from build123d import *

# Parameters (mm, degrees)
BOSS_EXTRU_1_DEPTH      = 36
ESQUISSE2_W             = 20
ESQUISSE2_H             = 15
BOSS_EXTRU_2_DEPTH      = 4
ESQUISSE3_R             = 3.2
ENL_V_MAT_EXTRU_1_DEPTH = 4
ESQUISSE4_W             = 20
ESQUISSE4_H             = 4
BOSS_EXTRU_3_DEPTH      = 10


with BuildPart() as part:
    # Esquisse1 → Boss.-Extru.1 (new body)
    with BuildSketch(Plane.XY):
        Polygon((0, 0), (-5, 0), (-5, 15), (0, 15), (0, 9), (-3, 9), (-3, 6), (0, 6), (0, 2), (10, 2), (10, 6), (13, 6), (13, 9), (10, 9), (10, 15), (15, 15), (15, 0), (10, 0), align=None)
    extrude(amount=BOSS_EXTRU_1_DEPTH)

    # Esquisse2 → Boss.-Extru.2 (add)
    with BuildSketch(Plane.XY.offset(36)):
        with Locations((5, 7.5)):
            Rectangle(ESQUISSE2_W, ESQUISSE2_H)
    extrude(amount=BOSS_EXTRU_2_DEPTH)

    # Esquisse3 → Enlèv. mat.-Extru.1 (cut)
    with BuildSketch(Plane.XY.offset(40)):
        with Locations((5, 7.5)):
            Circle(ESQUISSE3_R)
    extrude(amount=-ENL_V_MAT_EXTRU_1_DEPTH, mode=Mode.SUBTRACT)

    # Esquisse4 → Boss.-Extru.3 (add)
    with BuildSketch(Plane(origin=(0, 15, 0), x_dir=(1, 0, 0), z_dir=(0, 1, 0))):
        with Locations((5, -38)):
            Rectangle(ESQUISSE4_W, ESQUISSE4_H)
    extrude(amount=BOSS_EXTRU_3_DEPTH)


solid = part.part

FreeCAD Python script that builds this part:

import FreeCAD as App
import Part
import Sketcher

V = App.Vector


def add_polygon(sketch, points):
    """Adds a closed chain of lines whose ends are joined by coincident constraints."""
    first, n = sketch.GeometryCount, len(points)
    for a, b in zip(points, points[1:] + points[:1]):
        sketch.addGeometry(Part.LineSegment(App.Vector(*a, 0), App.Vector(*b, 0)), False)
    for i in range(n):
        sketch.addConstraint(Sketcher.Constraint("Coincident", first + i, 2, first + (i + 1) % n, 1))

doc = App.newDocument("Part")
body = doc.addObject("PartDesign::Body", "Body")

# Sketch on XY plane
sketch1 = body.newObject("Sketcher::SketchObject", "Sketch")
sketch1.AttachmentSupport = (doc.getObject("XY_Plane"), [""])
sketch1.MapMode = "FlatFace"
add_polygon(sketch1, [(-5, 0), (15, 0), (15, 15), (10, 15), (10, 9), (13, 9), (13, 6), (10, 6), (10, 2), (0, 2), (0, 6), (-3, 6), (-3, 9), (0, 9), (0, 15), (-5, 15)])  # lines 0-15
sketch1.addConstraint(Sketcher.Constraint("Horizontal", 0))
sketch1.addConstraint(Sketcher.Constraint("Vertical", 1))
sketch1.addConstraint(Sketcher.Constraint("Horizontal", 2))
sketch1.addConstraint(Sketcher.Constraint("Vertical", 3))
sketch1.addConstraint(Sketcher.Constraint("Horizontal", 4))
sketch1.addConstraint(Sketcher.Constraint("Vertical", 5))
sketch1.addConstraint(Sketcher.Constraint("Horizontal", 6))
sketch1.addConstraint(Sketcher.Constraint("Vertical", 7))
sketch1.addConstraint(Sketcher.Constraint("Horizontal", 8))
sketch1.addConstraint(Sketcher.Constraint("Vertical", 9))
sketch1.addConstraint(Sketcher.Constraint("Horizontal", 10))
sketch1.addConstraint(Sketcher.Constraint("Vertical", 11))
sketch1.addConstraint(Sketcher.Constraint("Horizontal", 12))
sketch1.addConstraint(Sketcher.Constraint("Vertical", 13))
sketch1.addConstraint(Sketcher.Constraint("Horizontal", 14))
sketch1.addConstraint(Sketcher.Constraint("Vertical", 15))
sketch1.addConstraint(Sketcher.Constraint("PointOnObject", 0, 2, -1))
sketch1.addConstraint(Sketcher.Constraint("PointOnObject", 8, 2, -2))
sketch1.addConstraint(Sketcher.Constraint("PointOnObject", 12, 2, -2))
sketch1.addConstraint(Sketcher.Constraint("Horizontal", 6, 2, 9, 2))
sketch1.addConstraint(Sketcher.Constraint("Horizontal", 4, 2, 11, 2))
sketch1.addConstraint(Sketcher.Constraint("Horizontal", 2, 2, 13, 2))
sketch1.addConstraint(Sketcher.Constraint("Vertical", 3, 2, 6, 2))
sketch1.addConstraint(Sketcher.Constraint("Equal", 6, 10))
sketch1.addConstraint(Sketcher.Constraint("Equal", 2, 14))
sketch1.addConstraint(Sketcher.Constraint("Equal", 12, 5))
sketch1.addConstraint(Sketcher.Constraint("DistanceX", 0, 1, 0, 2, 20.0))
sketch1.addConstraint(Sketcher.Constraint("DistanceX", 2, 2, 2, 1, 5.0))
sketch1.addConstraint(Sketcher.Constraint("DistanceX", 4, 1, 4, 2, 3.0))
sketch1.addConstraint(Sketcher.Constraint("DistanceY", 1, 1, 1, 2, 15.0))
sketch1.addConstraint(Sketcher.Constraint("DistanceY", 3, 2, 3, 1, 6.0))
sketch1.addConstraint(Sketcher.Constraint("DistanceY", 7, 2, 7, 1, 4.0))
pad1 = body.newObject("PartDesign::Pad", "Pad")
pad1.Profile = sketch1
pad1.Length = 36

# Sketch on XY plane
sketch2 = body.newObject("Sketcher::SketchObject", "Sketch001")
sketch2.AttachmentSupport = (doc.getObject("XY_Plane"), [""])
sketch2.MapMode = "FlatFace"
sketch2.AttachmentOffset = App.Placement(V(0, 0, 36), App.Rotation())
add_polygon(sketch2, [(-5, 15), (-5, 0), (15, 0), (15, 15)])  # lines 0-3
sketch2.addConstraint(Sketcher.Constraint("Vertical", 0))
sketch2.addConstraint(Sketcher.Constraint("Horizontal", 1))
sketch2.addConstraint(Sketcher.Constraint("Vertical", 2))
sketch2.addConstraint(Sketcher.Constraint("Horizontal", 3))
sketch2.addConstraint(Sketcher.Constraint("PointOnObject", 0, 2, -1))
sketch2.addConstraint(Sketcher.Constraint("DistanceX", 1, 1, 1, 2, 20.0))
sketch2.addConstraint(Sketcher.Constraint("DistanceY", 0, 2, 0, 1, 15.0))
sketch2.addConstraint(Sketcher.Constraint("DistanceX", 0, 2, -1, 1, 5.0))
pad2 = body.newObject("PartDesign::Pad", "Pad001")
pad2.Profile = sketch2
pad2.Length = 4

# Sketch on XY plane
sketch3 = body.newObject("Sketcher::SketchObject", "Sketch002")
sketch3.AttachmentSupport = (doc.getObject("XY_Plane"), [""])
sketch3.MapMode = "FlatFace"
sketch3.AttachmentOffset = App.Placement(V(0, 0, 40), App.Rotation())
sketch3.addGeometry(Part.Circle(V(5, 7.5, 0), V(0, 0, 1), 3.2), False)
sketch3.addConstraint(Sketcher.Constraint("Diameter", 0, 6.4))
sketch3.addConstraint(Sketcher.Constraint("DistanceX", -1, 1, 0, 3, 5.0))
sketch3.addConstraint(Sketcher.Constraint("DistanceY", -1, 1, 0, 3, 7.5))
pocket1 = body.newObject("PartDesign::Pocket", "Pocket")
pocket1.Profile = sketch3
pocket1.Length = 4

# Sketch on XZ plane
sketch4 = body.newObject("Sketcher::SketchObject", "Sketch003")
sketch4.AttachmentSupport = (doc.getObject("XZ_Plane"), [""])
sketch4.MapMode = "FlatFace"
sketch4.AttachmentOffset = App.Placement(V(0, 0, -15), App.Rotation())
add_polygon(sketch4, [(-5, 36), (-5, 40), (15, 40), (15, 36)])  # lines 0-3
sketch4.addConstraint(Sketcher.Constraint("Vertical", 0))
sketch4.addConstraint(Sketcher.Constraint("Horizontal", 1))
sketch4.addConstraint(Sketcher.Constraint("Vertical", 2))
sketch4.addConstraint(Sketcher.Constraint("Horizontal", 3))
sketch4.addConstraint(Sketcher.Constraint("DistanceX", 1, 1, 1, 2, 20.0))
sketch4.addConstraint(Sketcher.Constraint("DistanceY", 0, 1, 0, 2, 4.0))
sketch4.addConstraint(Sketcher.Constraint("DistanceX", 0, 2, -1, 1, 5.0))
sketch4.addConstraint(Sketcher.Constraint("DistanceY", -1, 1, 0, 2, 40.0))
pad3 = body.newObject("PartDesign::Pad", "Pad002")
pad3.Profile = sketch4
pad3.Length = 10
pad3.Reversed = True

doc.recompute()
